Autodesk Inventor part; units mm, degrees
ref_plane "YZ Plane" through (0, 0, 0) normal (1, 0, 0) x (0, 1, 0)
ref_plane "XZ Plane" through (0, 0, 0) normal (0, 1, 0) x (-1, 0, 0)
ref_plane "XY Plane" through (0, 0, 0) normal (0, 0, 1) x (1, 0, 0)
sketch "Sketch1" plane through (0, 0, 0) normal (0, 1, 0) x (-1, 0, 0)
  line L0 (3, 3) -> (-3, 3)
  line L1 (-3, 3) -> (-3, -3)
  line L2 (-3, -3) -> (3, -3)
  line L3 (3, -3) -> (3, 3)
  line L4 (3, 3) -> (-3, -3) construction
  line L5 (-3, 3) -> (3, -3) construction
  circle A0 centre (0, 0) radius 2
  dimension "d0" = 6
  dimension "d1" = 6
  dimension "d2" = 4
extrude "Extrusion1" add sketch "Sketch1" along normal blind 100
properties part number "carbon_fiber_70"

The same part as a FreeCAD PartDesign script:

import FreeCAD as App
import Part
import Sketcher
from FreeCAD import Vector

doc = App.newDocument("Part")
body = doc.addObject("PartDesign::Body", "Body")

sketch1 = body.newObject("Sketcher::SketchObject", "Sketch")
sketch1.AttachmentSupport = (doc.getObject("XZ_Plane"), [""])
sketch1.MapMode = "FlatFace"
sketch1.addGeometry([
    Part.LineSegment(Vector(-3, -3, 0), Vector(-3, 3, 0)),
    Part.LineSegment(Vector(-3, 3, 0), Vector(3, 3, 0)),
    Part.LineSegment(Vector(3, 3, 0), Vector(3, -3, 0)),
    Part.LineSegment(Vector(3, -3, 0), Vector(-3, -3, 0)),
    Part.Circle(Vector(0, 0, 0), Vector(0, 0, 1), 2),
], False)
sketch1.addConstraint([
    Sketcher.Constraint("Coincident", 0, 2, 1, 1),
    Sketcher.Constraint("Coincident", 1, 2, 2, 1),
    Sketcher.Constraint("Coincident", 2, 2, 3, 1),
    Sketcher.Constraint("Coincident", 3, 2, 0, 1),
    Sketcher.Constraint("Vertical", 0),
    Sketcher.Constraint("Horizontal", 1),
    Sketcher.Constraint("Vertical", 2),
    Sketcher.Constraint("Horizontal", 3),
    Sketcher.Constraint("Coincident", 4, 3, -1, 1),
    Sketcher.Constraint("Symmetric", 0, 2, 2, 2, -1, 1),
    Sketcher.Constraint("Equal", 3, 0),
    Sketcher.Constraint("Diameter", 4, 4.0),
    Sketcher.Constraint("DistanceX", 1, 1, 1, 2, 6.0),
])
pad1 = body.newObject("PartDesign::Pad", "Pad")
pad1.Profile = sketch1
pad1.Length = 100
pad1.Reversed = True

doc.recompute()
